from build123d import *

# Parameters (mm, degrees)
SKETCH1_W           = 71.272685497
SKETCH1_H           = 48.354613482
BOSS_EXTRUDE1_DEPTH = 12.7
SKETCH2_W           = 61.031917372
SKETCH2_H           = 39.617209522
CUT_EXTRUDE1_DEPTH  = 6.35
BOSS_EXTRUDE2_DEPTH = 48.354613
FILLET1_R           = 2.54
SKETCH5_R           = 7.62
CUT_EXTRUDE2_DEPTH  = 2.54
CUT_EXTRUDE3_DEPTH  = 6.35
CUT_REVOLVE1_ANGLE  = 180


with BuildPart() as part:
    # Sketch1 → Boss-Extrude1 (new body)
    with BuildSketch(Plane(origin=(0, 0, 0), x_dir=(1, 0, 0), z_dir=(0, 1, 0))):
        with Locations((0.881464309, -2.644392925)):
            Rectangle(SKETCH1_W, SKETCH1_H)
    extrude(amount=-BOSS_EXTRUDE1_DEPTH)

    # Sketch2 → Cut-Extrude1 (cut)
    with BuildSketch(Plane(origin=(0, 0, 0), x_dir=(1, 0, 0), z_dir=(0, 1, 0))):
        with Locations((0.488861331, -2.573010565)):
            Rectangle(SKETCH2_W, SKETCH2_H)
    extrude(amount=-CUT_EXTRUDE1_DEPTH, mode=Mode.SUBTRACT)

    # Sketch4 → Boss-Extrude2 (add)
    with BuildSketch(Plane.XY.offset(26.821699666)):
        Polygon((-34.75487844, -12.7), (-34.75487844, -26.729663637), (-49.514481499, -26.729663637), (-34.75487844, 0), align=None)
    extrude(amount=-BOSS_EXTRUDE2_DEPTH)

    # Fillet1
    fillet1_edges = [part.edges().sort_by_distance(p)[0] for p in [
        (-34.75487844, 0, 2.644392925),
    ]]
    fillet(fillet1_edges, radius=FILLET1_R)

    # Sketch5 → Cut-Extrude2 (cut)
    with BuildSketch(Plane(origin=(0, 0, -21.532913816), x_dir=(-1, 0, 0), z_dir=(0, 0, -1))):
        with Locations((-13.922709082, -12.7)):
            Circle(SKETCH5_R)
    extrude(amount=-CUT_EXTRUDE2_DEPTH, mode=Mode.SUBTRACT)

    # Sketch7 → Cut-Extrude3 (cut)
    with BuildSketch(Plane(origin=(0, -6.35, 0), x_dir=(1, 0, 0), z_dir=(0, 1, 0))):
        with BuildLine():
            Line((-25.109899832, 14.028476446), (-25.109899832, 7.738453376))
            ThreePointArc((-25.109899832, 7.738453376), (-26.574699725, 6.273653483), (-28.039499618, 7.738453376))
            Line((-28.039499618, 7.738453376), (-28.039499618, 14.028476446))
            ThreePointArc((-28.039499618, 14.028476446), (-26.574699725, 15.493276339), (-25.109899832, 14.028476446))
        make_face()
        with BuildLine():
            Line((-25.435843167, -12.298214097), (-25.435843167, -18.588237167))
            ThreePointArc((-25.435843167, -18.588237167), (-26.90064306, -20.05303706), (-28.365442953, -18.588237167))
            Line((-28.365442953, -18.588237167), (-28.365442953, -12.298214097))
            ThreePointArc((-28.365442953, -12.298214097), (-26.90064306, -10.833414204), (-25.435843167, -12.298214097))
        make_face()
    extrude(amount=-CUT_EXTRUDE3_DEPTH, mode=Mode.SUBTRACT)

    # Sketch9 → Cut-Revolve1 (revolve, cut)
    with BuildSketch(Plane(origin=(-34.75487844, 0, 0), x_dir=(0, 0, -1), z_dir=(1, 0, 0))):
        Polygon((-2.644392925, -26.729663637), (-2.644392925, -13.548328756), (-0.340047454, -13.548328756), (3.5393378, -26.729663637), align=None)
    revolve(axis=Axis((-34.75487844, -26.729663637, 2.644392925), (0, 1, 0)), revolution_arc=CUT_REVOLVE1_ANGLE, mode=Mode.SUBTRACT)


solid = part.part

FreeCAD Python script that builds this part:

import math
import FreeCAD as App
import Part
import Sketcher

V = App.Vector
Q = App.Units.Quantity


def edges_at(feature, points):
    """Names of the edges that pass closest to the given points."""
    edges = feature.Shape.Edges
    near = lambda p: min(range(len(edges)), key=lambda i: edges[i].distToShape(Part.Vertex(*p))[0])
    return sorted({f"Edge{near(p) + 1}" for p in points})


def add_polygon(sketch, points):
    """Adds a closed chain of lines whose ends are joined by coincident constraints."""
    first, n = sketch.GeometryCount, len(points)
    for a, b in zip(points, points[1:] + points[:1]):
        sketch.addGeometry(Part.LineSegment(App.Vector(*a, 0), App.Vector(*b, 0)), False)
    for i in range(n):
        sketch.addConstraint(Sketcher.Constraint("Coincident", first + i, 2, first + (i + 1) % n, 1))

doc = App.newDocument("Part")
params = doc.addObject("Spreadsheet::Sheet", "Params")
for row, (alias, value) in enumerate([
    ("pad1_length", "0.5 in"),
    ("pocket1_length", "0.25 in"),
    ("pad2_length", "48.354613 mm"),
    ("fillet_radius", "0.1 in"),
    ("sketch4_diameter", "0.6 in"),
    ("pocket2_length", "0.1 in"),
    ("pocket3_length", "0.25 in"),
    ("groove_angle", "180 deg"),
], start=1):
    params.set(f"A{row}", alias)
    params.set(f"B{row}", "=" + value)
    params.setAlias(f"B{row}", alias)

body = doc.addObject("PartDesign::Body", "Body")

sketch1 = doc.addObject("Sketcher::SketchObject", "Sketch")
body.addObject(sketch1)
sketch1.AttachmentSupport = (doc.XZ_Plane, [""])
sketch1.MapMode = "FlatFace"
add_polygon(sketch1, [(-35, -22), (-35, 27), (37, 27), (37, -22)])
sketch1.addConstraint(Sketcher.Constraint("Vertical", 0))
sketch1.addConstraint(Sketcher.Constraint("Horizontal", 1))
sketch1.addConstraint(Sketcher.Constraint("Vertical", 2))
sketch1.addConstraint(Sketcher.Constraint("Horizontal", 3))
sketch1.addConstraint(Sketcher.Constraint("DistanceY", -1, 1, 0, 2, 26.8217))
sketch1.addConstraint(Sketcher.Constraint("DistanceX", 1, 1, 1, 2, 71.272685))
sketch1.addConstraint(Sketcher.Constraint("DistanceY", 0, 1, 0, 2, 48.354613))
sketch1.addConstraint(Sketcher.Constraint("DistanceX", 0, 2, -1, 1, 34.754878))
pad1 = doc.addObject("PartDesign::Pad", "Pad")
body.addObject(pad1)
pad1.Profile = sketch1
pad1.setExpression("Length", "Params.pad1_length")

sketch2 = doc.addObject("Sketcher::SketchObject", "Sketch001")
body.addObject(sketch2)
sketch2.AttachmentSupport = (doc.XZ_Plane, [""])
sketch2.MapMode = "FlatFace"
add_polygon(sketch2, [(-30, -17), (-30, 22), (31, 22), (31, -17)])
sketch2.addConstraint(Sketcher.Constraint("Vertical", 0))
sketch2.addConstraint(Sketcher.Constraint("Horizontal", 1))
sketch2.addConstraint(Sketcher.Constraint("Vertical", 2))
sketch2.addConstraint(Sketcher.Constraint("Horizontal", 3))
sketch2.addConstraint(Sketcher.Constraint("DistanceY", 0, 1, 0, 2, 39.61721))
sketch2.addConstraint(Sketcher.Constraint("DistanceX", 1, 1, 1, 2, 61.031917))
sketch2.addConstraint(Sketcher.Constraint("DistanceX", -1, 1, 1, 2, 31.00482))
sketch2.addConstraint(Sketcher.Constraint("DistanceY", -1, 1, 0, 2, 22.381615))
pocket1 = doc.addObject("PartDesign::Pocket", "Pocket")
body.addObject(pocket1)
pocket1.Profile = sketch2
pocket1.setExpression("Length", "Params.pocket1_length")
pocket1.Reversed = True

sketch3 = doc.addObject("Sketcher::SketchObject", "Sketch002")
body.addObject(sketch3)
sketch3.AttachmentSupport = (doc.XY_Plane, [""])
sketch3.MapMode = "FlatFace"
sketch3.AttachmentOffset = App.Placement(V(0, 0, 26.8217), App.Rotation())
add_polygon(sketch3, [(-35, -27), (-35, 0), (-50, -27)])
sketch3.addConstraint(Sketcher.Constraint("Vertical", 0))
sketch3.addConstraint(Sketcher.Constraint("Horizontal", 2))
sketch3.addConstraint(Sketcher.Constraint("PointOnObject", 0, 2, -1))
sketch3.addConstraint(Sketcher.Constraint("Distance", 1, 30.533929))
sketch3.addConstraint(Sketcher.Constraint("DistanceX", 2, 1, 2, 2, 14.759603))
sketch3.addConstraint(Sketcher.Constraint("DistanceX", 0, 2, -1, 1, 34.754878))
pad2 = doc.addObject("PartDesign::Pad", "Pad001")
body.addObject(pad2)
pad2.Profile = sketch3
pad2.setExpression("Length", "Params.pad2_length")
pad2.Reversed = True
doc.recompute()

fillet = doc.addObject("PartDesign::Fillet", "Fillet")
body.addObject(fillet)
fillet.Base = (pad2, edges_at(pad2, [(-34.755, 0, 2.644)]))
fillet.setExpression("Radius", "Params.fillet_radius")

sketch4 = doc.addObject("Sketcher::SketchObject", "Sketch003")
body.addObject(sketch4)
sketch4.AttachmentSupport = (doc.XY_Plane, [""])
sketch4.MapMode = "FlatFace"
sketch4.AttachmentOffset = App.Placement(V(0, 0, -21.532914), App.Rotation())
sketch4.addGeometry(Part.Circle(V(14, -13, 0), V(0, 0, 1), 8), False)
sketch4.addConstraint(Sketcher.Constraint("Diameter", 0, Q("0.6 in")))
sketch4.addConstraint(Sketcher.Constraint("DistanceY", 0, 3, -1, 1, Q("0.5 in")))
sketch4.addConstraint(Sketcher.Constraint("DistanceX", -1, 1, 0, 3, 13.922709))
sketch4.setExpression("Constraints[0]", "Params.sketch4_diameter")
pocket2 = doc.addObject("PartDesign::Pocket", "Pocket001")
body.addObject(pocket2)
pocket2.Profile = sketch4
pocket2.setExpression("Length", "Params.pocket2_length")
pocket2.Reversed = True

sketch5 = doc.addObject("Sketcher::SketchObject", "Sketch004")
body.addObject(sketch5)
sketch5.AttachmentSupport = (doc.XZ_Plane, [""])
sketch5.MapMode = "FlatFace"
sketch5.AttachmentOffset = App.Placement(V(0, 0, 0.25 * 25.4), App.Rotation())
sketch5.addGeometry(Part.LineSegment(V(-25.1, -7.7, 0), V(-25.1, -14, 0)), False)
sketch5.addGeometry(Part.ArcOfCircle(Part.Circle(V(-26.6, -14, 0), V(0, 0, 1), 1.5), math.radians(180), math.radians(360)), False)
sketch5.addGeometry(Part.LineSegment(V(-28, -14, 0), V(-28, -7.7, 0)), False)
sketch5.addGeometry(Part.ArcOfCircle(Part.Circle(V(-26.6, -7.7, 0), V(0, 0, 1), 1.5), math.radians(0), math.radians(180)), False)
sketch5.addGeometry(Part.LineSegment(V(-25.4, 18.6, 0), V(-25.4, 12.3, 0)), False)
sketch5.addGeometry(Part.ArcOfCircle(Part.Circle(V(-26.9, 12.3, 0), V(0, 0, 1), 1.5), math.radians(180), math.radians(360)), False)
sketch5.addGeometry(Part.LineSegment(V(-28.4, 12.3, 0), V(-28.4, 18.6, 0)), False)
sketch5.addGeometry(Part.ArcOfCircle(Part.Circle(V(-26.9, 18.6, 0), V(0, 0, 1), 1.5), math.radians(0), math.radians(180)), False)
sketch5.addConstraint(Sketcher.Constraint("Tangent", 0, 2, 1, 2))
sketch5.addConstraint(Sketcher.Constraint("Tangent", 1, 1, 2, 1))
sketch5.addConstraint(Sketcher.Constraint("Tangent", 2, 2, 3, 2))
sketch5.addConstraint(Sketcher.Constraint("Tangent", 3, 1, 0, 1))
sketch5.addConstraint(Sketcher.Constraint("Tangent", 4, 2, 5, 2))
sketch5.addConstraint(Sketcher.Constraint("Tangent", 5, 1, 6, 1))
sketch5.addConstraint(Sketcher.Constraint("Tangent", 6, 2, 7, 2))
sketch5.addConstraint(Sketcher.Constraint("Tangent", 7, 1, 4, 1))
sketch5.addConstraint(Sketcher.Constraint("Vertical", 0))
sketch5.addConstraint(Sketcher.Constraint("Vertical", 2))
sketch5.addConstraint(Sketcher.Constraint("Vertical", 4))
sketch5.addConstraint(Sketcher.Constraint("Vertical", 6))
sketch5.addConstraint(Sketcher.Constraint("Equal", 3, 5))
sketch5.addConstraint(Sketcher.Constraint("Equal", 2, 4))
sketch5.addConstraint(Sketcher.Constraint("Radius", 1, 1.4648))
sketch5.addConstraint(Sketcher.Constraint("DistanceX", 1, 3, -1, 1, 26.5747))
sketch5.addConstraint(Sketcher.Constraint("DistanceY", 0, 2, 0, 1, 6.290023))
sketch5.addConstraint(Sketcher.Constraint("DistanceY", 1, 3, 5, 3, 26.326691))
sketch5.addConstraint(Sketcher.Constraint("DistanceY", 1, 3, -1, 1, 14.028476))
sketch5.addConstraint(Sketcher.Constraint("DistanceX", 5, 3, -1, 1, 26.900643))
pocket3 = doc.addObject("PartDesign::Pocket", "Pocket002")
body.addObject(pocket3)
pocket3.Profile = sketch5
pocket3.setExpression("Length", "Params.pocket3_length")
pocket3.Reversed = True

sketch6 = doc.addObject("Sketcher::SketchObject", "Sketch005")
body.addObject(sketch6)
sketch6.AttachmentSupport = (doc.YZ_Plane, [""])
sketch6.MapMode = "FlatFace"
sketch6.AttachmentOffset = App.Placement(V(0, 0, -34.754878), App.Rotation())
add_polygon(sketch6, [(-13.5, 2.6), (-26.7, 2.6), (-26.7, -3.5), (-13.5, 0.3)])
sketch6.addGeometry(Part.LineSegment(V(-26.7, 2.6, 0), V(-13.5, 2.6, 0)), True)
sketch6.addConstraint(Sketcher.Constraint("Horizontal", 0))
sketch6.addConstraint(Sketcher.Constraint("Vertical", 1))
sketch6.addConstraint(Sketcher.Constraint("Vertical", 3))
sketch6.addConstraint(Sketcher.Constraint("Horizontal", 4))
sketch6.addConstraint(Sketcher.Constraint("Coincident", 4, 1, 0, 2))
sketch6.addConstraint(Sketcher.Constraint("Vertical", 2, 2, 4, 2))
sketch6.addConstraint(Sketcher.Constraint("DistanceY", 1, 2, 1, 1, 6.183731))
sketch6.addConstraint(Sketcher.Constraint("Distance", 2, 13.74035))
sketch6.addConstraint(Sketcher.Constraint("DistanceX", 0, 2, 0, 1, 13.181335))
sketch6.addConstraint(Sketcher.Constraint("DistanceX", 2, 2, -1, 1, 13.548329))
sketch6.addConstraint(Sketcher.Constraint("DistanceY", -1, 1, 0, 2, 2.644393))
groove = doc.addObject("PartDesign::Groove", "Groove")
body.addObject(groove)
groove.Profile = sketch6
groove.ReferenceAxis = (sketch6, ["Axis0"])
groove.setExpression("Angle", "Params.groove_angle")

doc.recompute()
